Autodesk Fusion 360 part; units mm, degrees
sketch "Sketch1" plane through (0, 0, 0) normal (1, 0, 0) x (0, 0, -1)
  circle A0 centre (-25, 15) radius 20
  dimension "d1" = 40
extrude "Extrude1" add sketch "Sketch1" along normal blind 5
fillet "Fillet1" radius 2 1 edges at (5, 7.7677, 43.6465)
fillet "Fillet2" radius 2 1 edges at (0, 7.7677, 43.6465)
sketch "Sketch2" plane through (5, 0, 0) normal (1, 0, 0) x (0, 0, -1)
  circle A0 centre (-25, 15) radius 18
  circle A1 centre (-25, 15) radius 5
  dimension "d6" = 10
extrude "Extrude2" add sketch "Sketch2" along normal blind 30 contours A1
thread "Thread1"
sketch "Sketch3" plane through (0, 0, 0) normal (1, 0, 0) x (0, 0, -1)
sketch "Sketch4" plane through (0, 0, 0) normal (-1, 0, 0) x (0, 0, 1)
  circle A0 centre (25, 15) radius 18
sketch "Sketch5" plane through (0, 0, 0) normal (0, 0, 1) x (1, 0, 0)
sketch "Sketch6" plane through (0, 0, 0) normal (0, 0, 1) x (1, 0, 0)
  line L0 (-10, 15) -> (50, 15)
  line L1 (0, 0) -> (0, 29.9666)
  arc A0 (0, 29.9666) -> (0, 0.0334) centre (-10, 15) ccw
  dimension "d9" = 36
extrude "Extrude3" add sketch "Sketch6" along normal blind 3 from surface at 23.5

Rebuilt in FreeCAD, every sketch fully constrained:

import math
import FreeCAD as App
import Part
import Sketcher


def edges_at(feature, points):
    """Names of the edges that pass closest to the given points."""
    edges = feature.Shape.Edges
    near = lambda p: min(range(len(edges)), key=lambda i: edges[i].distToShape(Part.Vertex(*p))[0])
    return sorted({f"Edge{near(p) + 1}" for p in points})

doc = App.newDocument("Part")
body = doc.addObject("PartDesign::Body", "Body")

sketch1 = doc.addObject("Sketcher::SketchObject", "Sketch")
body.addObject(sketch1)
sketch1.AttachmentSupport = (doc.YZ_Plane, [""])
sketch1.MapMode = "FlatFace"
sketch1.addGeometry(Part.Circle(App.Vector(15, 25, 0), App.Vector(0, 0, 1), 20), False)
sketch1.addConstraint(Sketcher.Constraint("Diameter", 0, 40.0))
sketch1.addConstraint(Sketcher.Constraint("DistanceX", -1, 1, 0, 3, 15.0))
sketch1.addConstraint(Sketcher.Constraint("DistanceY", -1, 1, 0, 3, 25.0))
pad1 = doc.addObject("PartDesign::Pad", "Pad")
body.addObject(pad1)
pad1.Profile = sketch1
pad1.Length = 5
doc.recompute()

fillet = doc.addObject("PartDesign::Fillet", "Fillet")
body.addObject(fillet)
fillet.Base = (pad1, edges_at(pad1, [(5, 7.768, 43.647)]))
fillet.Radius = 2
doc.recompute()

fillet2 = doc.addObject("PartDesign::Fillet", "Fillet001")
body.addObject(fillet2)
fillet2.Base = (fillet, edges_at(fillet, [(0, 7.768, 43.647)]))
fillet2.Radius = 2

sketch2 = doc.addObject("Sketcher::SketchObject", "Sketch001")
body.addObject(sketch2)
sketch2.AttachmentSupport = (doc.YZ_Plane, [""])
sketch2.MapMode = "FlatFace"
sketch2.AttachmentOffset = App.Placement(App.Vector(0, 0, 5), App.Rotation())
sketch2.addGeometry(Part.Circle(App.Vector(15, 25, 0), App.Vector(0, 0, 1), 5), False)
sketch2.addConstraint(Sketcher.Constraint("Diameter", 0, 10.0))
sketch2.addConstraint(Sketcher.Constraint("DistanceX", -1, 1, 0, 3, 15.0))
sketch2.addConstraint(Sketcher.Constraint("DistanceY", -1, 1, 0, 3, 25.0))
pad2 = doc.addObject("PartDesign::Pad", "Pad001")
body.addObject(pad2)
pad2.Profile = sketch2
pad2.Length = 30

sketch3 = doc.addObject("Sketcher::SketchObject", "Sketch002")
body.addObject(sketch3)
sketch3.AttachmentSupport = (doc.XY_Plane, [""])
sketch3.MapMode = "FlatFace"
sketch3.AttachmentOffset = App.Placement(App.Vector(0, 0, 23.5), App.Rotation())
sketch3.addGeometry(Part.ArcOfCircle(Part.Circle(App.Vector(-10, 15, 0), App.Vector(0, 0, 1), 18), math.radians(56), math.radians(304)), False)
sketch3.addGeometry(Part.LineSegment(App.Vector(0, 0, 0), App.Vector(0, 30, 0)), False)
sketch3.addConstraint(Sketcher.Constraint("Coincident", 0, 1, 1, 2))
sketch3.addConstraint(Sketcher.Constraint("Coincident", 1, 1, 0, 2))
sketch3.addConstraint(Sketcher.Constraint("Vertical", 1))
sketch3.addConstraint(Sketcher.Constraint("PointOnObject", 0, 1, -2))
sketch3.addConstraint(Sketcher.Constraint("Radius", 0, 18.0))
sketch3.addConstraint(Sketcher.Constraint("DistanceX", 0, 3, -1, 1, 10.0))
sketch3.addConstraint(Sketcher.Constraint("DistanceY", -1, 1, 0, 3, 15.0))
pad3 = doc.addObject("PartDesign::Pad", "Pad002")
body.addObject(pad3)
pad3.Profile = sketch3
pad3.Length = 3

doc.recompute()
